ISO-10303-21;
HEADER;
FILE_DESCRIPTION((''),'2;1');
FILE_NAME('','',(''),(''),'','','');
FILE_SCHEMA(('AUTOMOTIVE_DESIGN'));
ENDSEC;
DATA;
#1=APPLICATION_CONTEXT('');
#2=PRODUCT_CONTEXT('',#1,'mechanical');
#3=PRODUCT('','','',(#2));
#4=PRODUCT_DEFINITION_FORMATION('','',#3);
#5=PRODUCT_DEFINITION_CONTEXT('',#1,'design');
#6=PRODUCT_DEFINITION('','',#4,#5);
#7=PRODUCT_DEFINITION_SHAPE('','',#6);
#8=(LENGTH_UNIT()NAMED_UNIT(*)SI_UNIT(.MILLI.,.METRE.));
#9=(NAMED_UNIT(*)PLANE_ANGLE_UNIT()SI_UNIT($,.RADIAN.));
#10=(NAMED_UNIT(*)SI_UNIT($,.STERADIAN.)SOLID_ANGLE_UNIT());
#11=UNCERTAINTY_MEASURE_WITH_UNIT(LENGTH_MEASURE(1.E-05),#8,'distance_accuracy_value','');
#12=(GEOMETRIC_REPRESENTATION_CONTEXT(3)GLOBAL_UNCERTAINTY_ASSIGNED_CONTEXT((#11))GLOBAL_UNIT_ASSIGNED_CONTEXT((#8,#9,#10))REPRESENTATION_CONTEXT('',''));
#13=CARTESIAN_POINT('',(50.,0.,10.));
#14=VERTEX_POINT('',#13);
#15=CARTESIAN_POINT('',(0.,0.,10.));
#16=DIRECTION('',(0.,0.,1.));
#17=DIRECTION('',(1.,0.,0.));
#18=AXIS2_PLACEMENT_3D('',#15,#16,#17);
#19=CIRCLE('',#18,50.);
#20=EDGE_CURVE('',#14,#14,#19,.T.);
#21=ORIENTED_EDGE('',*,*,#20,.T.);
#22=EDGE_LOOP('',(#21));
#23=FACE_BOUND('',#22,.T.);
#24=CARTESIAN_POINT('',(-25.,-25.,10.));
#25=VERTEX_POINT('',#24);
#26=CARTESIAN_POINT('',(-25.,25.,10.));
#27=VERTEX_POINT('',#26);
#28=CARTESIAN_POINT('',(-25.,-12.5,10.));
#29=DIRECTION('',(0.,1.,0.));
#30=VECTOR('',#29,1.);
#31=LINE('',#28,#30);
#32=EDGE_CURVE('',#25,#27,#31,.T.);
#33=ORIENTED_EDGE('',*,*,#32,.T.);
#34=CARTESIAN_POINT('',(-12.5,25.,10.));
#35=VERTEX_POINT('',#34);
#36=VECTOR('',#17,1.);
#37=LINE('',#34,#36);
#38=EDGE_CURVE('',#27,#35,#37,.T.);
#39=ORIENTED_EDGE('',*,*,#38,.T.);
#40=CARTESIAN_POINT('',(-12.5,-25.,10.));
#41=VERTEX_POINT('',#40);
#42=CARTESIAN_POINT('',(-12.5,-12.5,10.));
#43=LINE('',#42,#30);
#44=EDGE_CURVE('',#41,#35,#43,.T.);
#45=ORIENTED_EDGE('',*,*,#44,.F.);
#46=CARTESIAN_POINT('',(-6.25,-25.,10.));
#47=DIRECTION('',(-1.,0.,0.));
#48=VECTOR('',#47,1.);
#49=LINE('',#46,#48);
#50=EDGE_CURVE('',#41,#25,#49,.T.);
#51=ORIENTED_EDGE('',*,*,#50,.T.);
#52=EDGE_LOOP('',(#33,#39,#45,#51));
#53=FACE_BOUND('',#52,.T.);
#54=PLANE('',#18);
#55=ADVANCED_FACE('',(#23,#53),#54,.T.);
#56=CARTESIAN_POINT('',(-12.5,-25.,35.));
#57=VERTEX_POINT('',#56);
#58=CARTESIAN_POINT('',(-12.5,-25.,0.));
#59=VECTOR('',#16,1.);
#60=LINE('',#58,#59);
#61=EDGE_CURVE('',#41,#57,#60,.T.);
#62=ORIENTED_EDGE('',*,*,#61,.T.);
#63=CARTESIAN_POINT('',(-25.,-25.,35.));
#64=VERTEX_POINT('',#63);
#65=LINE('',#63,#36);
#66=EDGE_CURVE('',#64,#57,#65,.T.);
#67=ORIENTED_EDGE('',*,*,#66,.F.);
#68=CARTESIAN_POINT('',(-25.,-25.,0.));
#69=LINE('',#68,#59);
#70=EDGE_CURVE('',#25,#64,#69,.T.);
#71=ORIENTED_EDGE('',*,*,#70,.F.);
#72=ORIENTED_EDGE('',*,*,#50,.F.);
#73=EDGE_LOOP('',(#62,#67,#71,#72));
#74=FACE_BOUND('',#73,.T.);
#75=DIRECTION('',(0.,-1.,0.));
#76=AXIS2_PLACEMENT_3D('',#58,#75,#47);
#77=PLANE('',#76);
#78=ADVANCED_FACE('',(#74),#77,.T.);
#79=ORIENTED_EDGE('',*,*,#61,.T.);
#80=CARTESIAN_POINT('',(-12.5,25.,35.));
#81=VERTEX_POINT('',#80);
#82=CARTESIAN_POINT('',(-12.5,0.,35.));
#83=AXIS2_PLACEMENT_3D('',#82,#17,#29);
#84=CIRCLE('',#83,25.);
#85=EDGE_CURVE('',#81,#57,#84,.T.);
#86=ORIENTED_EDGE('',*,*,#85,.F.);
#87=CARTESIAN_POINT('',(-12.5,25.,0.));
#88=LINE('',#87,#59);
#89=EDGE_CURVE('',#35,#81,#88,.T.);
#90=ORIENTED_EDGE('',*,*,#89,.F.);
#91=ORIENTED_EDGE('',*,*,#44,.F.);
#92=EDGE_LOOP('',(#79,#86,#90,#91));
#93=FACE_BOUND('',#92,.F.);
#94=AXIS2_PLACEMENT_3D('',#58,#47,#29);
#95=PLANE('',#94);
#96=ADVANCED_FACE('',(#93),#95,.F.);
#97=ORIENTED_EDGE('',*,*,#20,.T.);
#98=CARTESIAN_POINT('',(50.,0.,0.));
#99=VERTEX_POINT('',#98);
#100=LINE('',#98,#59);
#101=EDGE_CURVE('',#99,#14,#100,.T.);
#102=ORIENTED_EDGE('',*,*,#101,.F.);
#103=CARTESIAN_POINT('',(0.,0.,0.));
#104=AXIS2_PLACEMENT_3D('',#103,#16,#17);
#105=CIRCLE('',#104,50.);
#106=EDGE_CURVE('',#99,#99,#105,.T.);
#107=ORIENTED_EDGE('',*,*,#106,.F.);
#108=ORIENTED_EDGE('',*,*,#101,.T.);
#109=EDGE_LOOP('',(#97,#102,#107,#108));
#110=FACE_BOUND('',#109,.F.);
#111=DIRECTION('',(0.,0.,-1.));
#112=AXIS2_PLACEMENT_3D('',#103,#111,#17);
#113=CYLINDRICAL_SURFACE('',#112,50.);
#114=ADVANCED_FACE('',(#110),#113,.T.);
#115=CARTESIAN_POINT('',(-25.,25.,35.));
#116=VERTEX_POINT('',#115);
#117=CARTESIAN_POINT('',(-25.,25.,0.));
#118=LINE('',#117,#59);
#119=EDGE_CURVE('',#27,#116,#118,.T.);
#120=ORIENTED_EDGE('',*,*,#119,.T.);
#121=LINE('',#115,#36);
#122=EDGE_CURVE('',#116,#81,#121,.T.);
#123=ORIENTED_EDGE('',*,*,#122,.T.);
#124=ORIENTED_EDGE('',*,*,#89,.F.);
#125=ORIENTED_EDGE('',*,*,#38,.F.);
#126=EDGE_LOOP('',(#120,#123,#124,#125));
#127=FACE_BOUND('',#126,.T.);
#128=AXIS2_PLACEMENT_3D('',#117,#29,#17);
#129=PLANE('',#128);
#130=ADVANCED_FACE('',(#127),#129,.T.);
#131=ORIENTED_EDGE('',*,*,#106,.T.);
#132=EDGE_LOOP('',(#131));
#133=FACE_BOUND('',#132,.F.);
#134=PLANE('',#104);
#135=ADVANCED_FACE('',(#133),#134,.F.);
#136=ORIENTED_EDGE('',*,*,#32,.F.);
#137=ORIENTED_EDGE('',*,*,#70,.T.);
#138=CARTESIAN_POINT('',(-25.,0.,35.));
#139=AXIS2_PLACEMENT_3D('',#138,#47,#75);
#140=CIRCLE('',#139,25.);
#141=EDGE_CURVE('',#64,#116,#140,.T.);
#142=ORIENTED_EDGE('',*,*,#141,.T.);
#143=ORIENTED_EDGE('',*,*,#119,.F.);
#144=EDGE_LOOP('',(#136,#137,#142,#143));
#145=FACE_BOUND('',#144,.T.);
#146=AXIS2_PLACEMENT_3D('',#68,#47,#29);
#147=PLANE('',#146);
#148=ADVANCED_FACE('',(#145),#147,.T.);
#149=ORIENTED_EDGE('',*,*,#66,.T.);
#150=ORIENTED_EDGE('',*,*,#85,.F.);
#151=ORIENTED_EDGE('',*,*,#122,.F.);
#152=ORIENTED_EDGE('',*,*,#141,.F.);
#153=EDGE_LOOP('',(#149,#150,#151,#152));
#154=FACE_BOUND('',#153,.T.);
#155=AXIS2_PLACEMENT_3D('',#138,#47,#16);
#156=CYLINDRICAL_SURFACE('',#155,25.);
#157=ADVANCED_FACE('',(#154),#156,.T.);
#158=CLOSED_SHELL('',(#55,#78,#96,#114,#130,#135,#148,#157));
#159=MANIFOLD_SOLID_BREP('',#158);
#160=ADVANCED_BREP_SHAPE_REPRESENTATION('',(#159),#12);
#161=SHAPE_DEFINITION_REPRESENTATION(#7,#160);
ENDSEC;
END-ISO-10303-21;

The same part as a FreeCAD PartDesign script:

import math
import FreeCAD as App
import Part
import Sketcher


def add_polygon(sketch, points):
    """Adds a closed chain of lines whose ends are joined by coincident constraints."""
    first, n = sketch.GeometryCount, len(points)
    for a, b in zip(points, points[1:] + points[:1]):
        sketch.addGeometry(Part.LineSegment(App.Vector(*a, 0), App.Vector(*b, 0)), False)
    for i in range(n):
        sketch.addConstraint(Sketcher.Constraint("Coincident", first + i, 2, first + (i + 1) % n, 1))

doc = App.newDocument("Part")
params = doc.addObject("Spreadsheet::Sheet", "Params")
for row, (alias, value) in enumerate([
    ("sketch1_height", "50 mm"),
    ("sketch1_width", "12.5 mm"),
    ("pad1_length", "60 mm"),
    ("sketch2_diameter", "100 mm"),
    ("pad2_length", "10 mm"),
    ("sketch3_radius", "25 mm"),
], start=1):
    params.set(f"A{row}", alias)
    params.set(f"B{row}", "=" + value)
    params.setAlias(f"B{row}", alias)

body = doc.addObject("PartDesign::Body", "Body")

sketch1 = body.newObject("Sketcher::SketchObject", "Sketch")
sketch1.AttachmentSupport = (doc.getObject("XY_Plane"), [""])
sketch1.MapMode = "FlatFace"
add_polygon(sketch1, [(-12, 25), (-25, 25), (-25, -25), (-12, -25)])
sketch1.addConstraint([
    Sketcher.Constraint("Horizontal", 0),
    Sketcher.Constraint("Vertical", 1),
    Sketcher.Constraint("Horizontal", 2),
    Sketcher.Constraint("Vertical", 3),
    Sketcher.Constraint("DistanceY", 1, 2, 1, 1, 50.0),
    Sketcher.Constraint("DistanceX", 0, 2, 0, 1, 12.5),
    Sketcher.Constraint("DistanceX", 0, 2, -1, 1, 25.0),
    Sketcher.Constraint("DistanceY", -1, 1, 0, 2, 25.0),
])
sketch1.setExpression("Constraints[8]", "Params.sketch1_height")
sketch1.setExpression("Constraints[9]", "Params.sketch1_width")
pad1 = body.newObject("PartDesign::Pad", "Pad")
pad1.Profile = sketch1
pad1.setExpression("Length", "Params.pad1_length")

sketch2 = body.newObject("Sketcher::SketchObject", "Sketch001")
sketch2.AttachmentSupport = (doc.getObject("XY_Plane"), [""])
sketch2.MapMode = "FlatFace"
sketch2.addGeometry(Part.Circle(App.Vector(0, 0, 0), App.Vector(0, 0, 1), 50), False)
sketch2.addConstraint([
    Sketcher.Constraint("Coincident", 0, 3, -1, 1),
    Sketcher.Constraint("Diameter", 0, 100.0),
])
sketch2.setExpression("Constraints[1]", "Params.sketch2_diameter")
pad2 = body.newObject("PartDesign::Pad", "Pad001")
pad2.Profile = sketch2
pad2.setExpression("Length", "Params.pad2_length")

sketch3 = body.newObject("Sketcher::SketchObject", "Sketch002")
sketch3.AttachmentSupport = (doc.getObject("YZ_Plane"), [""])
sketch3.MapMode = "FlatFace"
sketch3.AttachmentOffset = App.Placement(App.Vector(0, 0, -25), App.Rotation())
sketch3.addGeometry([
    Part.LineSegment(App.Vector(25, 60, 0), App.Vector(25, 35, 0)),
    Part.ArcOfCircle(Part.Circle(App.Vector(0, 35, 0), App.Vector(0, 0, 1), 25), math.radians(0), math.radians(90)),
    Part.LineSegment(App.Vector(0, 60, 0), App.Vector(25, 60, 0)),
    Part.ArcOfCircle(Part.Circle(App.Vector(0, 35, 0), App.Vector(0, 0, 1), 25), math.radians(90), math.radians(180)),
    Part.LineSegment(App.Vector(-25, 35, 0), App.Vector(-25, 60, 0)),
    Part.LineSegment(App.Vector(-25, 60, 0), App.Vector(0, 60, 0)),
], False)
sketch3.addConstraint([
    Sketcher.Constraint("Tangent", 0, 2, 1, 1),
    Sketcher.Constraint("Tangent", 1, 2, 2, 1),
    Sketcher.Constraint("Coincident", 2, 2, 0, 1),
    Sketcher.Constraint("Tangent", 3, 2, 4, 1),
    Sketcher.Constraint("Coincident", 4, 2, 5, 1),
    Sketcher.Constraint("Tangent", 5, 2, 3, 1),
    Sketcher.Constraint("Vertical", 0),
    Sketcher.Constraint("Horizontal", 2),
    Sketcher.Constraint("Vertical", 4),
    Sketcher.Constraint("Horizontal", 5),
    Sketcher.Constraint("Coincident", 3, 3, 1, 3),
    Sketcher.Constraint("Equal", 1, 3),
    Sketcher.Constraint("PointOnObject", 1, 3, -2),
    Sketcher.Constraint("Radius", 1, 25.0),
    Sketcher.Constraint("DistanceY", -1, 1, 1, 3, 35.0),
])
sketch3.setExpression("Constraints[13]", "Params.sketch3_radius")
pocket1 = body.newObject("PartDesign::Pocket", "Pocket")
pocket1.Profile = sketch3
pocket1.Type = "ThroughAll"
pocket1.Reversed = True

doc.recompute()
